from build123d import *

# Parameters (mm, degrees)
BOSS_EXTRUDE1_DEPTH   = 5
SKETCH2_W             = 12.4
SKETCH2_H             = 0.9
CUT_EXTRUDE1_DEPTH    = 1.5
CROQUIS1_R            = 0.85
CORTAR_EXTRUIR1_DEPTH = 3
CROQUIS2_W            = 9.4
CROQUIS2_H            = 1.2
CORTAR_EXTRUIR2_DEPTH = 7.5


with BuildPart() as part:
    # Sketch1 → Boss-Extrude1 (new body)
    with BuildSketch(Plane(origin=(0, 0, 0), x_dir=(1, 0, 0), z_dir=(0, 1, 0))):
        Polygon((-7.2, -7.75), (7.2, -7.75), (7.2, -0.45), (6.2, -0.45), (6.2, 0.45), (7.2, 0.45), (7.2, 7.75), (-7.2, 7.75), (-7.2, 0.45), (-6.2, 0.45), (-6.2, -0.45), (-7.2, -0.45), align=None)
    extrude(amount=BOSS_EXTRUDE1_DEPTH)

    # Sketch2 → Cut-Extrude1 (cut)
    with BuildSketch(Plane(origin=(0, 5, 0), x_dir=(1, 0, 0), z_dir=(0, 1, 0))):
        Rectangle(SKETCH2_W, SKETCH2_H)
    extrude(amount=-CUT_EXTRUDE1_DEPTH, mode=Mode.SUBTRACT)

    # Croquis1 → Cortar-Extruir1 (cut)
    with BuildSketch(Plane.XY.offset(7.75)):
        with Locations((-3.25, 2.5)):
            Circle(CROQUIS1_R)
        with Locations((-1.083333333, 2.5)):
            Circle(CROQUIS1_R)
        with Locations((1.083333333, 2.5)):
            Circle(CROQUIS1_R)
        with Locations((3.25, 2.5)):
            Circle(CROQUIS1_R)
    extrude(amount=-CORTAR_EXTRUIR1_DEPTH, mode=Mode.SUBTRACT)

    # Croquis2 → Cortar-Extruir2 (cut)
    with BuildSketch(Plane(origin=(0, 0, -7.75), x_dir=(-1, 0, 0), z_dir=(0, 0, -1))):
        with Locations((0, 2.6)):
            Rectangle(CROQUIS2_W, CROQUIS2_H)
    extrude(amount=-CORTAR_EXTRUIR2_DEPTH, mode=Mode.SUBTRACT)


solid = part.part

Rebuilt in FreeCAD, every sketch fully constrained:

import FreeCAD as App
import Part
import Sketcher
from FreeCAD import Vector

doc = App.newDocument("Part")
params = doc.addObject("Spreadsheet::Sheet", "Params")
for row, (alias, value) in enumerate([
    ("sketch1_width", "1 mm"),
    ("sketch1_width2", "14.4 mm"),
    ("sketch1_height", "7.3 mm"),
    ("sketch1_height2", "0.9 mm"),
    ("pad1_length", "5 mm"),
    ("sketch2_width", "12.4 mm"),
    ("sketch2_height", "0.9 mm"),
    ("pocket1_length", "1.5 mm"),
    ("sketch3_diameter", "1.7 mm"),
    ("pocket2_length", "3 mm"),
    ("sketch4_width", "9.4 mm"),
    ("sketch4_height", "1.2 mm"),
    ("pocket3_length", "7.5 mm"),
], start=1):
    params.set(f"A{row}", alias)
    params.set(f"B{row}", "=" + value)
    params.setAlias(f"B{row}", alias)

body = doc.addObject("PartDesign::Body", "Body")

# Sketch on XZ plane
sketch1 = doc.addObject("Sketcher::SketchObject", "Sketch")
body.addObject(sketch1)
sketch1.AttachmentSupport = (doc.XZ_Plane, [""])
sketch1.MapMode = "FlatFace"
sketch1.addGeometry(Part.LineSegment(Vector(-7.2, 7.8, 0), Vector(7.2, 7.8, 0)), False)
sketch1.addGeometry(Part.LineSegment(Vector(7.2, 7.8, 0), Vector(7.2, 0.5, 0)), False)
sketch1.addGeometry(Part.LineSegment(Vector(7.2, 0.5, 0), Vector(6.2, 0.5, 0)), False)
sketch1.addGeometry(Part.LineSegment(Vector(6.2, 0.5, 0), Vector(6.2, -0.5, 0)), False)
sketch1.addGeometry(Part.LineSegment(Vector(6.2, -0.5, 0), Vector(7.2, -0.5, 0)), False)
sketch1.addGeometry(Part.LineSegment(Vector(7.2, -0.5, 0), Vector(7.2, -7.8, 0)), False)
sketch1.addGeometry(Part.LineSegment(Vector(7.2, -7.8, 0), Vector(-7.2, -7.8, 0)), False)
sketch1.addGeometry(Part.LineSegment(Vector(-7.2, -7.8, 0), Vector(-7.2, -0.5, 0)), False)
sketch1.addGeometry(Part.LineSegment(Vector(-7.2, -0.5, 0), Vector(-6.2, -0.5, 0)), False)
sketch1.addGeometry(Part.LineSegment(Vector(-6.2, -0.5, 0), Vector(-6.2, 0.5, 0)), False)
sketch1.addGeometry(Part.LineSegment(Vector(-6.2, 0.5, 0), Vector(-7.2, 0.5, 0)), False)
sketch1.addGeometry(Part.LineSegment(Vector(-7.2, 0.5, 0), Vector(-7.2, 7.8, 0)), False)
sketch1.addConstraint(Sketcher.Constraint("Coincident", 0, 2, 1, 1))
sketch1.addConstraint(Sketcher.Constraint("Coincident", 1, 2, 2, 1))
sketch1.addConstraint(Sketcher.Constraint("Coincident", 2, 2, 3, 1))
sketch1.addConstraint(Sketcher.Constraint("Coincident", 3, 2, 4, 1))
sketch1.addConstraint(Sketcher.Constraint("Coincident", 4, 2, 5, 1))
sketch1.addConstraint(Sketcher.Constraint("Coincident", 5, 2, 6, 1))
sketch1.addConstraint(Sketcher.Constraint("Coincident", 6, 2, 7, 1))
sketch1.addConstraint(Sketcher.Constraint("Coincident", 7, 2, 8, 1))
sketch1.addConstraint(Sketcher.Constraint("Coincident", 8, 2, 9, 1))
sketch1.addConstraint(Sketcher.Constraint("Coincident", 9, 2, 10, 1))
sketch1.addConstraint(Sketcher.Constraint("Coincident", 10, 2, 11, 1))
sketch1.addConstraint(Sketcher.Constraint("Coincident", 11, 2, 0, 1))
sketch1.addConstraint(Sketcher.Constraint("Horizontal", 0))
sketch1.addConstraint(Sketcher.Constraint("Vertical", 1))
sketch1.addConstraint(Sketcher.Constraint("Horizontal", 2))
sketch1.addConstraint(Sketcher.Constraint("Vertical", 3))
sketch1.addConstraint(Sketcher.Constraint("Horizontal", 4))
sketch1.addConstraint(Sketcher.Constraint("Vertical", 5))
sketch1.addConstraint(Sketcher.Constraint("Horizontal", 6))
sketch1.addConstraint(Sketcher.Constraint("Vertical", 7))
sketch1.addConstraint(Sketcher.Constraint("Horizontal", 8))
sketch1.addConstraint(Sketcher.Constraint("Vertical", 9))
sketch1.addConstraint(Sketcher.Constraint("Horizontal", 10))
sketch1.addConstraint(Sketcher.Constraint("Vertical", 11))
sketch1.addConstraint(Sketcher.Constraint("Symmetric", 0, 2, 6, 2, -1, 1))
sketch1.addConstraint(Sketcher.Constraint("Symmetric", 2, 2, 8, 2, -1, 1))
sketch1.addConstraint(Sketcher.Constraint("Symmetric", 4, 2, 10, 2, -1, 1))
sketch1.addConstraint(Sketcher.Constraint("Symmetric", 4, 2, 7, 2, -2))
sketch1.addConstraint(Sketcher.Constraint("DistanceX", 2, 2, 2, 1, 1.0))
sketch1.addConstraint(Sketcher.Constraint("DistanceX", 0, 1, 0, 2, 14.4))
sketch1.addConstraint(Sketcher.Constraint("DistanceY", 1, 2, 1, 1, 7.3))
sketch1.addConstraint(Sketcher.Constraint("DistanceY", 3, 2, 3, 1, 0.9))
sketch1.setExpression("Constraints[28]", "Params.sketch1_width")
sketch1.setExpression("Constraints[29]", "Params.sketch1_width2")
sketch1.setExpression("Constraints[30]", "Params.sketch1_height")
sketch1.setExpression("Constraints[31]", "Params.sketch1_height2")
pad1 = doc.addObject("PartDesign::Pad", "Pad")
body.addObject(pad1)
pad1.Profile = sketch1
pad1.setExpression("Length", "Params.pad1_length")
pad1.Reversed = True

# Sketch on XZ plane
sketch2 = doc.addObject("Sketcher::SketchObject", "Sketch001")
body.addObject(sketch2)
sketch2.AttachmentSupport = (doc.XZ_Plane, [""])
sketch2.MapMode = "FlatFace"
sketch2.AttachmentOffset = App.Placement(Vector(0, 0, -5), App.Rotation())
sketch2.addGeometry(Part.LineSegment(Vector(-6.2, -0.5, 0), Vector(-6.2, 0.5, 0)), False)
sketch2.addGeometry(Part.LineSegment(Vector(-6.2, 0.5, 0), Vector(6.2, 0.5, 0)), False)
sketch2.addGeometry(Part.LineSegment(Vector(6.2, 0.5, 0), Vector(6.2, -0.5, 0)), False)
sketch2.addGeometry(Part.LineSegment(Vector(6.2, -0.5, 0), Vector(-6.2, -0.5, 0)), False)
sketch2.addConstraint(Sketcher.Constraint("Coincident", 0, 2, 1, 1))
sketch2.addConstraint(Sketcher.Constraint("Coincident", 1, 2, 2, 1))
sketch2.addConstraint(Sketcher.Constraint("Coincident", 2, 2, 3, 1))
sketch2.addConstraint(Sketcher.Constraint("Coincident", 3, 2, 0, 1))
sketch2.addConstraint(Sketcher.Constraint("Vertical", 0))
sketch2.addConstraint(Sketcher.Constraint("Horizontal", 1))
sketch2.addConstraint(Sketcher.Constraint("Vertical", 2))
sketch2.addConstraint(Sketcher.Constraint("Horizontal", 3))
sketch2.addConstraint(Sketcher.Constraint("Symmetric", 0, 2, 2, 2, -1, 1))
sketch2.addConstraint(Sketcher.Constraint("DistanceX", 1, 1, 1, 2, 12.4))
sketch2.addConstraint(Sketcher.Constraint("DistanceY", 0, 1, 0, 2, 0.9))
sketch2.setExpression("Constraints[9]", "Params.sketch2_width")
sketch2.setExpression("Constraints[10]", "Params.sketch2_height")
pocket1 = doc.addObject("PartDesign::Pocket", "Pocket")
body.addObject(pocket1)
pocket1.Profile = sketch2
pocket1.setExpression("Length", "Params.pocket1_length")
pocket1.Reversed = True

# Sketch on XY plane
sketch3 = doc.addObject("Sketcher::SketchObject", "Sketch002")
body.addObject(sketch3)
sketch3.AttachmentSupport = (doc.XY_Plane, [""])
sketch3.MapMode = "FlatFace"
sketch3.AttachmentOffset = App.Placement(Vector(0, 0, 7.75), App.Rotation())
sketch3.addGeometry(Part.Circle(Vector(-3.2, 2.5, 0), Vector(0, 0, 1), 0.8), False)
sketch3.addGeometry(Part.Circle(Vector(-1.1, 2.5, 0), Vector(0, 0, 1), 0.8), False)
sketch3.addGeometry(Part.Circle(Vector(1.1, 2.5, 0), Vector(0, 0, 1), 0.8), False)
sketch3.addGeometry(Part.Circle(Vector(3.2, 2.5, 0), Vector(0, 0, 1), 0.8), False)
sketch3.addConstraint(Sketcher.Constraint("Equal", 0, 1))
sketch3.addConstraint(Sketcher.Constraint("Equal", 1, 2))
sketch3.addConstraint(Sketcher.Constraint("Equal", 2, 3))
sketch3.addConstraint(Sketcher.Constraint("Symmetric", 1, 3, 2, 3, -2))
sketch3.addConstraint(Sketcher.Constraint("Symmetric", 0, 3, 3, 3, -2))
sketch3.addConstraint(Sketcher.Constraint("Horizontal", 0, 3, 1, 3))
sketch3.addConstraint(Sketcher.Constraint("Diameter", 0, 1.7))
sketch3.addConstraint(Sketcher.Constraint("DistanceY", -1, 1, 0, 3, 2.5))
sketch3.addConstraint(Sketcher.Constraint("DistanceX", 0, 3, 3, 3, 6.5))
sketch3.addConstraint(Sketcher.Constraint("DistanceX", 1, 3, -1, 1, 1.083333))
sketch3.setExpression("Constraints[6]", "Params.sketch3_diameter")
pocket2 = doc.addObject("PartDesign::Pocket", "Pocket001")
body.addObject(pocket2)
pocket2.Profile = sketch3
pocket2.setExpression("Length", "Params.pocket2_length")

# Sketch on XY plane
sketch4 = doc.addObject("Sketcher::SketchObject", "Sketch003")
body.addObject(sketch4)
sketch4.AttachmentSupport = (doc.XY_Plane, [""])
sketch4.MapMode = "FlatFace"
sketch4.AttachmentOffset = App.Placement(Vector(0, 0, -7.75), App.Rotation())
sketch4.addGeometry(Part.LineSegment(Vector(4.7, 3.2, 0), Vector(4.7, 2, 0)), False)
sketch4.addGeometry(Part.LineSegment(Vector(4.7, 2, 0), Vector(-4.7, 2, 0)), False)
sketch4.addGeometry(Part.LineSegment(Vector(-4.7, 2, 0), Vector(-4.7, 3.2, 0)), False)
sketch4.addGeometry(Part.LineSegment(Vector(-4.7, 3.2, 0), Vector(4.7, 3.2, 0)), False)
sketch4.addConstraint(Sketcher.Constraint("Coincident", 0, 2, 1, 1))
sketch4.addConstraint(Sketcher.Constraint("Coincident", 1, 2, 2, 1))
sketch4.addConstraint(Sketcher.Constraint("Coincident", 2, 2, 3, 1))
sketch4.addConstraint(Sketcher.Constraint("Coincident", 3, 2, 0, 1))
sketch4.addConstraint(Sketcher.Constraint("Vertical", 0))
sketch4.addConstraint(Sketcher.Constraint("Horizontal", 1))
sketch4.addConstraint(Sketcher.Constraint("Vertical", 2))
sketch4.addConstraint(Sketcher.Constraint("Horizontal", 3))
sketch4.addConstraint(Sketcher.Constraint("DistanceX", 1, 2, 1, 1, 9.4))
sketch4.addConstraint(Sketcher.Constraint("DistanceY", 0, 2, 0, 1, 1.2))
sketch4.addConstraint(Sketcher.Constraint("DistanceY", -1, 1, 0, 2, 2.0))
sketch4.addConstraint(Sketcher.Constraint("DistanceX", -1, 1, 0, 2, 4.7))
sketch4.setExpression("Constraints[8]", "Params.sketch4_width")
sketch4.setExpression("Constraints[9]", "Params.sketch4_height")
pocket3 = doc.addObject("PartDesign::Pocket", "Pocket002")
body.addObject(pocket3)
pocket3.Profile = sketch4
pocket3.setExpression("Length", "Params.pocket3_length")
pocket3.Reversed = True

doc.recompute()
